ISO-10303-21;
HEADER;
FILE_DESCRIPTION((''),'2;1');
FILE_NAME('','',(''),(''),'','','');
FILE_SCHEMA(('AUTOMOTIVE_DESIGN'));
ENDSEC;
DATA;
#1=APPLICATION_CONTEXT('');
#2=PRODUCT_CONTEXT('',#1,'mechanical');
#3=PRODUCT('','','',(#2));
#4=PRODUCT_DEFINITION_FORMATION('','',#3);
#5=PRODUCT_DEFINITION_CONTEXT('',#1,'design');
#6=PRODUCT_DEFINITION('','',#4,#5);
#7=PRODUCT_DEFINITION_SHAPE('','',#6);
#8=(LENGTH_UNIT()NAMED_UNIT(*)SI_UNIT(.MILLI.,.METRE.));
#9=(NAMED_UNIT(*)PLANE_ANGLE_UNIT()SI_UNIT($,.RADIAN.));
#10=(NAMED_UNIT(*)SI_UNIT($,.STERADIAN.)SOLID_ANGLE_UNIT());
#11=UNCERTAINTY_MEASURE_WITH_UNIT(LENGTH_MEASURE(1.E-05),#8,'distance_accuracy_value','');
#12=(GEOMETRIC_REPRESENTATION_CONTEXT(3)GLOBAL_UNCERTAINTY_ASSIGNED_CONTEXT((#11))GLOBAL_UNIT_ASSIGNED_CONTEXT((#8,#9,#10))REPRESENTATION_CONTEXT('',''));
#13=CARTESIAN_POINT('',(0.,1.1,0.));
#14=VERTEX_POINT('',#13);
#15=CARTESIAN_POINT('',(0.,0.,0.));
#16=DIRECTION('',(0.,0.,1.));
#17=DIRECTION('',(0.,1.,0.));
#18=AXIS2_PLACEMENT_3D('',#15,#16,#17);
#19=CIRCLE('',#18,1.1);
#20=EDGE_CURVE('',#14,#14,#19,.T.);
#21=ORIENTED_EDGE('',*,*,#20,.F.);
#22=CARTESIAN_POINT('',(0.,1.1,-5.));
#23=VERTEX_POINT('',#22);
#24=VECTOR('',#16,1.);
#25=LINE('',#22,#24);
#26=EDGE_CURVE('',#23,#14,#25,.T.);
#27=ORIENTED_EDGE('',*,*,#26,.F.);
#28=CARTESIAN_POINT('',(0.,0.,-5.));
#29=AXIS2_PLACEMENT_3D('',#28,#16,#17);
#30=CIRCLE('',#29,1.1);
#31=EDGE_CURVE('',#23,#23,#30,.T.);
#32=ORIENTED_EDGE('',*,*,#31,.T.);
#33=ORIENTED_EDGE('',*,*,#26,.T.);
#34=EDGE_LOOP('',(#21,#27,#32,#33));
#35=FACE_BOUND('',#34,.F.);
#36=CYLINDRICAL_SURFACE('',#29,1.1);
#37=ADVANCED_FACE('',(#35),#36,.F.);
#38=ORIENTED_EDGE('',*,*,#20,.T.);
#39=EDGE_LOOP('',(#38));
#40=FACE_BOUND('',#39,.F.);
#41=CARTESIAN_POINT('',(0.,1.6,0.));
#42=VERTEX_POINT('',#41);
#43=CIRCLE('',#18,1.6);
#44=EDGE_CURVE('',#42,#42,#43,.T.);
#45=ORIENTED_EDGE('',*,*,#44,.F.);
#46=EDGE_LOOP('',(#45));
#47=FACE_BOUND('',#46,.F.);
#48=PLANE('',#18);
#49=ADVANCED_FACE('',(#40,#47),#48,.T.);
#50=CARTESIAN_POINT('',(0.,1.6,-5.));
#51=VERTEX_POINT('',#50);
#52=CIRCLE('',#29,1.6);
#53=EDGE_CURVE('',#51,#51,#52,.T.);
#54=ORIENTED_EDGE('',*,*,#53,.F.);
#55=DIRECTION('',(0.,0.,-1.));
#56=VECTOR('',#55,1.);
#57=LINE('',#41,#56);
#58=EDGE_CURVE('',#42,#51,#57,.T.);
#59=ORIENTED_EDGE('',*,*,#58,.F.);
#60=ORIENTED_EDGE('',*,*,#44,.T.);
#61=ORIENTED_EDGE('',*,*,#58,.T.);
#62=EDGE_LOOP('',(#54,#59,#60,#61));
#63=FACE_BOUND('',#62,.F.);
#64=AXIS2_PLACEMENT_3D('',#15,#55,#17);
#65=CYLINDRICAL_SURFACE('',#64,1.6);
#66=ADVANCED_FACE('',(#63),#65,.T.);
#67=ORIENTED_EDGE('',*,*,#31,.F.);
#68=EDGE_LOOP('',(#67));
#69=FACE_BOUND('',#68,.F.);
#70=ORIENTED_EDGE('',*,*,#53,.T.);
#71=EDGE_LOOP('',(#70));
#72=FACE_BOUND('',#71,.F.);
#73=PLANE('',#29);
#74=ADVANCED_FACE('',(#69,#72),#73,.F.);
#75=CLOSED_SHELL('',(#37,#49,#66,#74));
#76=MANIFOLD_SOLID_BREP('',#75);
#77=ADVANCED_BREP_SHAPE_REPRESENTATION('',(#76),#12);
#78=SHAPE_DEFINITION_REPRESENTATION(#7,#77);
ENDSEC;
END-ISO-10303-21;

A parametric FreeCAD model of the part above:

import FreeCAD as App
import Part
import Sketcher

V = App.Vector
Q = App.Units.Quantity


def add_polygon(sketch, points):
    """Adds a closed chain of lines whose ends are joined by coincident constraints."""
    first, n = sketch.GeometryCount, len(points)
    for a, b in zip(points, points[1:] + points[:1]):
        sketch.addGeometry(Part.LineSegment(App.Vector(*a, 0), App.Vector(*b, 0)), False)
    for i in range(n):
        sketch.addConstraint(Sketcher.Constraint("Coincident", first + i, 2, first + (i + 1) % n, 1))

doc = App.newDocument("Part")
params = doc.addObject("Spreadsheet::Sheet", "Params")
for row, (alias, value) in enumerate([
    ("sketch1_height", "5 mm"),
    ("revolution_angle", "360 deg"),
], start=1):
    params.set(f"A{row}", alias)
    params.set(f"B{row}", "=" + value)
    params.setAlias(f"B{row}", alias)

body = doc.addObject("PartDesign::Body", "Body")

# Sketch on YZ plane
sketch1 = body.newObject("Sketcher::SketchObject", "Sketch")
sketch1.AttachmentSupport = (doc.getObject("YZ_Plane"), [""])
sketch1.MapMode = "FlatFace"
add_polygon(sketch1, [(1.6, 0), (1.1, 0), (1.1, -5), (1.6, -5)])  # lines 0-3
sketch1.addConstraint([
    Sketcher.Constraint("Horizontal", 0),
    Sketcher.Constraint("Vertical", 1),
    Sketcher.Constraint("Horizontal", 2),
    Sketcher.Constraint("Vertical", 3),
    Sketcher.Constraint("PointOnObject", 0, 2, -1),
    Sketcher.Constraint("DistanceY", 1, 2, 1, 1, Q("5 mm")),
    Sketcher.Constraint("DistanceX", -1, 1, 0, 2, Q("1.1 mm")),
    Sketcher.Constraint("DistanceX", -1, 1, 2, 2, Q("1.6 mm")),
])
sketch1.setExpression("Constraints[9]", "Params.sketch1_height")
revolution = body.newObject("PartDesign::Revolution", "Revolution")
revolution.Profile = sketch1
revolution.ReferenceAxis = (sketch1, ["V_Axis"])
revolution.setExpression("Angle", "Params.revolution_angle")

doc.recompute()
